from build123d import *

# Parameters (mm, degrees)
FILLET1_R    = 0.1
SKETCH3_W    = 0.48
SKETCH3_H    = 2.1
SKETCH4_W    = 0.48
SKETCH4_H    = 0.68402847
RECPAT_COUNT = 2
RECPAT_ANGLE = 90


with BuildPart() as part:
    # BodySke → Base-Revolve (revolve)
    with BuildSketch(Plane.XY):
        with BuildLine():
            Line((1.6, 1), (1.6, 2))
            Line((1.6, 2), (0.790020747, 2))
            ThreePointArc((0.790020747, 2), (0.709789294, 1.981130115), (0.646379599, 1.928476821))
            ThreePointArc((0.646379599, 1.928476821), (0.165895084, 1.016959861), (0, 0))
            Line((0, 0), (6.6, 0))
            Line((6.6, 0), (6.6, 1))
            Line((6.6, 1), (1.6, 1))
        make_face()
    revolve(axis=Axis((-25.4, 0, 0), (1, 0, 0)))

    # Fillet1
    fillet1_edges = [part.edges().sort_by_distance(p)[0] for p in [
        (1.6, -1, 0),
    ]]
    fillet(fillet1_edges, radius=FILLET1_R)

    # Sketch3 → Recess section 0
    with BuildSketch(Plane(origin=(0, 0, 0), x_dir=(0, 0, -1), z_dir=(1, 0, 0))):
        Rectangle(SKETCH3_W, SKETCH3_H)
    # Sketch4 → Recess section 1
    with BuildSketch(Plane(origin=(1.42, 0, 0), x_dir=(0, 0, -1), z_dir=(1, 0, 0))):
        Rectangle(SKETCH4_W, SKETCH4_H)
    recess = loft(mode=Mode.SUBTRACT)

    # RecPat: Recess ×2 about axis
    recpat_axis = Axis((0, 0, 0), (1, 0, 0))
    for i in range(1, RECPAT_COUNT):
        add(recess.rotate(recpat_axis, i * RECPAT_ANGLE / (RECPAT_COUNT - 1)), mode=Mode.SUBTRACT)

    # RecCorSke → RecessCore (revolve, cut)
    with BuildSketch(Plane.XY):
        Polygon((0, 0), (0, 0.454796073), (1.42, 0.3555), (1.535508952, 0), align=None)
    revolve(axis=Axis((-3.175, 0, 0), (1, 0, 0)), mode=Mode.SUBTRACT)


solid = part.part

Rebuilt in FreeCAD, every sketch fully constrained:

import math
import FreeCAD as App
import Part
import Sketcher
Q = App.Units.Quantity


def edges_at(feature, points):
    """Names of the edges that pass closest to the given points."""
    edges = feature.Shape.Edges
    near = lambda p: min(range(len(edges)), key=lambda i: edges[i].distToShape(Part.Vertex(*p))[0])
    return sorted({f"Edge{near(p) + 1}" for p in points})


def add_polygon(sketch, points):
    """Adds a closed chain of lines whose ends are joined by coincident constraints."""
    first, n = sketch.GeometryCount, len(points)
    for a, b in zip(points, points[1:] + points[:1]):
        sketch.addGeometry(Part.LineSegment(App.Vector(*a, 0), App.Vector(*b, 0)), False)
    for i in range(n):
        sketch.addConstraint(Sketcher.Constraint("Coincident", first + i, 2, first + (i + 1) % n, 1))

doc = App.newDocument("Part")
body = doc.addObject("PartDesign::Body", "Body")

# Sketch on XY plane
sketch1 = body.newObject("Sketcher::SketchObject", "Sketch")
sketch1.AttachmentSupport = (doc.getObject("XY_Plane"), [""])
sketch1.MapMode = "FlatFace"
sketch1.addGeometry([
    Part.LineSegment(App.Vector(1.6, 1, 0), App.Vector(1.6, 2, 0)),  # 0
    Part.LineSegment(App.Vector(1.6, 2, 0), App.Vector(0.790021, 2, 0)),  # 1
    Part.ArcOfCircle(Part.Circle(App.Vector(0.790021, 1.82, 0), App.Vector(0, 0, 1), 0.18), math.radians(90), math.radians(142.940145)),  # 2
    Part.ArcOfCircle(Part.Circle(App.Vector(3.2, 0, 0), App.Vector(0, 0, 1), 3.2), math.radians(142.940145), math.radians(180)),  # 3
    Part.LineSegment(App.Vector(0, 0, 0), App.Vector(6.6, 0, 0)),  # 4
    Part.LineSegment(App.Vector(6.6, 0, 0), App.Vector(6.6, 1, 0)),  # 5
    Part.LineSegment(App.Vector(6.6, 1, 0), App.Vector(1.6, 1, 0)),  # 6
], False)
sketch1.addConstraint([
    Sketcher.Constraint("Coincident", 0, 2, 1, 1),
    Sketcher.Constraint("Tangent", 1, 2, 2, 1),
    Sketcher.Constraint("Tangent", 2, 2, 3, 1),
    Sketcher.Constraint("Coincident", 3, 2, 4, 1),
    Sketcher.Constraint("Coincident", 4, 2, 5, 1),
    Sketcher.Constraint("Coincident", 5, 2, 6, 1),
    Sketcher.Constraint("Coincident", 6, 2, 0, 1),
    Sketcher.Constraint("Vertical", 0),
    Sketcher.Constraint("Horizontal", 1),
    Sketcher.Constraint("Horizontal", 4),
    Sketcher.Constraint("Vertical", 5),
    Sketcher.Constraint("Horizontal", 6),
    Sketcher.Constraint("Coincident", 3, 2, -1, 1),
    Sketcher.Constraint("PointOnObject", 3, 3, -1),
    Sketcher.Constraint("Equal", 0, 5),
    Sketcher.Constraint("Radius", 3, Q("3.2 mm")),
    Sketcher.Constraint("DistanceX", 6, 2, 6, 1, Q("5 mm")),
    Sketcher.Constraint("DistanceY", 0, 1, 0, 2, Q("1 mm")),
    Sketcher.Constraint("Radius", 2, Q("0.18 mm")),
    Sketcher.Constraint("DistanceX", 4, 1, 4, 2, Q("6.6 mm")),
])
revolution = body.newObject("PartDesign::Revolution", "Revolution")
revolution.Profile = sketch1
revolution.ReferenceAxis = (sketch1, ["H_Axis"])
revolution.Angle = 360
doc.recompute()

fillet = body.newObject("PartDesign::Fillet", "Fillet")
fillet.Base = (revolution, edges_at(revolution, [(1.6, -1, 0)]))
fillet.Radius = 0.1

# Sketch on YZ plane
sketch2 = body.newObject("Sketcher::SketchObject", "Sketch001")
sketch2.AttachmentSupport = (doc.getObject("YZ_Plane"), [""])
sketch2.MapMode = "FlatFace"
add_polygon(sketch2, [(1.05, 0.24), (-1.05, 0.24), (-1.05, -0.24), (1.05, -0.24)])  # lines 0-3
sketch2.addConstraint([
    Sketcher.Constraint("Horizontal", 0),
    Sketcher.Constraint("Vertical", 1),
    Sketcher.Constraint("Horizontal", 2),
    Sketcher.Constraint("Vertical", 3),
    Sketcher.Constraint("Symmetric", 0, 2, 2, 2, -1, 1),
    Sketcher.Constraint("DistanceX", 0, 2, 0, 1, Q("2.1 mm")),
    Sketcher.Constraint("DistanceY", 1, 2, 1, 1, Q("0.48 mm")),
])

# Sketch on YZ plane
sketch3 = body.newObject("Sketcher::SketchObject", "Sketch002")
sketch3.AttachmentSupport = (doc.getObject("YZ_Plane"), [""])
sketch3.MapMode = "FlatFace"
sketch3.AttachmentOffset = App.Placement(App.Vector(0, 0, 1.42), App.Rotation())
add_polygon(sketch3, [(0.342014, 0.24), (-0.342014, 0.24), (-0.342014, -0.24), (0.342014, -0.24)])  # lines 0-3
sketch3.addConstraint([
    Sketcher.Constraint("Horizontal", 0),
    Sketcher.Constraint("Vertical", 1),
    Sketcher.Constraint("Horizontal", 2),
    Sketcher.Constraint("Vertical", 3),
    Sketcher.Constraint("Symmetric", 0, 2, 2, 2, -1, 1),
    Sketcher.Constraint("DistanceY", 1, 2, 1, 1, Q("0.48 mm")),
    Sketcher.Constraint("DistanceX", 0, 2, 0, 1, Q("0.684028 mm")),
])

subtractiveloft = body.newObject("PartDesign::SubtractiveLoft", "SubtractiveLoft")
subtractiveloft.Profile = sketch2
subtractiveloft.Sections = [sketch3]
doc.recompute()

polarpattern = body.newObject("PartDesign::PolarPattern", "PolarPattern")
polarpattern.Originals = [subtractiveloft]
polarpattern.Axis = (doc.getObject("X_Axis"), [""])
polarpattern.Angle = 90
polarpattern.Occurrences = 2
body.Tip = polarpattern

# Sketch on XY plane
sketch4 = body.newObject("Sketcher::SketchObject", "Sketch003")
sketch4.AttachmentSupport = (doc.getObject("XY_Plane"), [""])
sketch4.MapMode = "FlatFace"
add_polygon(sketch4, [(0, 0.454796), (0, 0), (1.535509, 0), (1.42, 0.3555)])  # lines 0-3
sketch4.addConstraint([
    Sketcher.Constraint("Vertical", 0),
    Sketcher.Constraint("Horizontal", 1),
    Sketcher.Constraint("Coincident", 0, 2, -1, 1),
    Sketcher.Constraint("Angle", 2, Q("108 deg")),
    Sketcher.Constraint("Angle", 3, Q("176 deg")),
    Sketcher.Constraint("DistanceX", -1, 1, 2, 2, Q("1.42 mm")),
    Sketcher.Constraint("DistanceX", 1, 1, 1, 2, Q("1.535509 mm")),
])
groove = body.newObject("PartDesign::Groove", "Groove")
groove.Profile = sketch4
groove.ReferenceAxis = (sketch4, ["H_Axis"])
groove.Angle = 360

doc.recompute()
